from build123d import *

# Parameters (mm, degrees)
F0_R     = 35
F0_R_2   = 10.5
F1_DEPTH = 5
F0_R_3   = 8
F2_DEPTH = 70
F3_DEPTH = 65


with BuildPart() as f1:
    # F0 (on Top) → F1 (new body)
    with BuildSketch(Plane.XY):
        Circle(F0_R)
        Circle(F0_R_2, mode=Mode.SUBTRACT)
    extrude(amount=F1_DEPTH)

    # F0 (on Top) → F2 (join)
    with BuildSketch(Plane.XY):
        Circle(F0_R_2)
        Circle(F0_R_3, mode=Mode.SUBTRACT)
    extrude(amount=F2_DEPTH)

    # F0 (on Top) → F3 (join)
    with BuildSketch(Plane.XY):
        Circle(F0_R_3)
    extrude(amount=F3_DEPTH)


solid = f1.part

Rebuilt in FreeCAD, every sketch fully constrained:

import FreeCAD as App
import Part
import Sketcher

doc = App.newDocument("Part")
body = doc.addObject("PartDesign::Body", "Body")

# Sketch on XY plane
sketch1 = doc.addObject("Sketcher::SketchObject", "Sketch")
body.addObject(sketch1)
sketch1.AttachmentSupport = (doc.XY_Plane, [""])
sketch1.MapMode = "FlatFace"
sketch1.addGeometry(Part.Circle(App.Vector(0, 0, 0), App.Vector(0, 0, 1), 35), False)
sketch1.addGeometry(Part.Circle(App.Vector(0, 0, 0), App.Vector(0, 0, 1), 10), False)
sketch1.addConstraint(Sketcher.Constraint("Coincident", 0, 3, -1, 1))
sketch1.addConstraint(Sketcher.Constraint("Coincident", 1, 3, -1, 1))
sketch1.addConstraint(Sketcher.Constraint("Diameter", 0, 70.0))
sketch1.addConstraint(Sketcher.Constraint("Diameter", 1, 21.0))
pad1 = doc.addObject("PartDesign::Pad", "Pad")
body.addObject(pad1)
pad1.Profile = sketch1
pad1.Length = 5

# Sketch on XY plane
sketch2 = doc.addObject("Sketcher::SketchObject", "Sketch001")
body.addObject(sketch2)
sketch2.AttachmentSupport = (doc.XY_Plane, [""])
sketch2.MapMode = "FlatFace"
sketch2.addGeometry(Part.Circle(App.Vector(0, 0, 0), App.Vector(0, 0, 1), 10), False)
sketch2.addGeometry(Part.Circle(App.Vector(0, 0, 0), App.Vector(0, 0, 1), 8), False)
sketch2.addConstraint(Sketcher.Constraint("Coincident", 0, 3, -1, 1))
sketch2.addConstraint(Sketcher.Constraint("Coincident", 1, 3, -1, 1))
sketch2.addConstraint(Sketcher.Constraint("Diameter", 0, 21.0))
sketch2.addConstraint(Sketcher.Constraint("Diameter", 1, 16.0))
pad2 = doc.addObject("PartDesign::Pad", "Pad001")
body.addObject(pad2)
pad2.Profile = sketch2
pad2.Length = 70

# Sketch on XY plane
sketch3 = doc.addObject("Sketcher::SketchObject", "Sketch002")
body.addObject(sketch3)
sketch3.AttachmentSupport = (doc.XY_Plane, [""])
sketch3.MapMode = "FlatFace"
sketch3.addGeometry(Part.Circle(App.Vector(0, 0, 0), App.Vector(0, 0, 1), 8), False)
sketch3.addConstraint(Sketcher.Constraint("Coincident", 0, 3, -1, 1))
sketch3.addConstraint(Sketcher.Constraint("Diameter", 0, 16.0))
pad3 = doc.addObject("PartDesign::Pad", "Pad002")
body.addObject(pad3)
pad3.Profile = sketch3
pad3.Length = 65

doc.recompute()
